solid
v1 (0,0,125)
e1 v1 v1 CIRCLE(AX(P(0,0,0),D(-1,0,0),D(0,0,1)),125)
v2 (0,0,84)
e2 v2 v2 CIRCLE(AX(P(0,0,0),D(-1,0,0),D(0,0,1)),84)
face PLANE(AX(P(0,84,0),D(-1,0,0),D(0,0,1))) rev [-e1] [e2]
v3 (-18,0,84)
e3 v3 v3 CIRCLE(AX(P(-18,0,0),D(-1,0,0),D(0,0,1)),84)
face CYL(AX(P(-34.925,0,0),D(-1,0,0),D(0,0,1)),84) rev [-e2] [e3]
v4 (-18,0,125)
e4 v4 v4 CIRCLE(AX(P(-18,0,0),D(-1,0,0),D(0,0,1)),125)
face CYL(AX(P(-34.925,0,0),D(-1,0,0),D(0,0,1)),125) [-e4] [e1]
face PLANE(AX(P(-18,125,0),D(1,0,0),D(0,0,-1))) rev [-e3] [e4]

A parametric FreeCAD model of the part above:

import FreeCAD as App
import Part
import Sketcher

doc = App.newDocument("Part")
params = doc.addObject("Spreadsheet::Sheet", "Params")
for row, (alias, value) in enumerate([
    ("sketch1_width", "18 mm"),
    ("sketch1_height", "41 mm"),
    ("revolution_angle", "360 deg"),
], start=1):
    params.set(f"A{row}", alias)
    params.set(f"B{row}", "=" + value)
    params.setAlias(f"B{row}", alias)

body = doc.addObject("PartDesign::Body", "Body")

sketch1 = body.newObject("Sketcher::SketchObject", "Sketch")
sketch1.AttachmentSupport = (doc.getObject("XY_Plane"), [""])
sketch1.MapMode = "FlatFace"
sketch1.addGeometry([
    Part.LineSegment(App.Vector(-18, 125, 0), App.Vector(-18, 84, 0)),
    Part.LineSegment(App.Vector(-18, 84, 0), App.Vector(0, 84, 0)),
    Part.LineSegment(App.Vector(0, 84, 0), App.Vector(0, 125, 0)),
    Part.LineSegment(App.Vector(0, 125, 0), App.Vector(-18, 125, 0)),
], False)
sketch1.addConstraint([
    Sketcher.Constraint("Coincident", 0, 2, 1, 1),
    Sketcher.Constraint("Coincident", 1, 2, 2, 1),
    Sketcher.Constraint("Coincident", 2, 2, 3, 1),
    Sketcher.Constraint("Coincident", 3, 2, 0, 1),
    Sketcher.Constraint("Vertical", 0),
    Sketcher.Constraint("Horizontal", 1),
    Sketcher.Constraint("Vertical", 2),
    Sketcher.Constraint("Horizontal", 3),
    Sketcher.Constraint("PointOnObject", 1, 2, -2),
    Sketcher.Constraint("DistanceX", 1, 1, 1, 2, 18.0),
    Sketcher.Constraint("DistanceY", 0, 2, 0, 1, 41.0),
    Sketcher.Constraint("DistanceY", -1, 1, 0, 2, 84.0),
])
sketch1.setExpression("Constraints[9]", "Params.sketch1_width")
sketch1.setExpression("Constraints[10]", "Params.sketch1_height")
revolution = body.newObject("PartDesign::Revolution", "Revolution")
revolution.Profile = sketch1
revolution.ReferenceAxis = (sketch1, ["H_Axis"])
revolution.setExpression("Angle", "Params.revolution_angle")

doc.recompute()
